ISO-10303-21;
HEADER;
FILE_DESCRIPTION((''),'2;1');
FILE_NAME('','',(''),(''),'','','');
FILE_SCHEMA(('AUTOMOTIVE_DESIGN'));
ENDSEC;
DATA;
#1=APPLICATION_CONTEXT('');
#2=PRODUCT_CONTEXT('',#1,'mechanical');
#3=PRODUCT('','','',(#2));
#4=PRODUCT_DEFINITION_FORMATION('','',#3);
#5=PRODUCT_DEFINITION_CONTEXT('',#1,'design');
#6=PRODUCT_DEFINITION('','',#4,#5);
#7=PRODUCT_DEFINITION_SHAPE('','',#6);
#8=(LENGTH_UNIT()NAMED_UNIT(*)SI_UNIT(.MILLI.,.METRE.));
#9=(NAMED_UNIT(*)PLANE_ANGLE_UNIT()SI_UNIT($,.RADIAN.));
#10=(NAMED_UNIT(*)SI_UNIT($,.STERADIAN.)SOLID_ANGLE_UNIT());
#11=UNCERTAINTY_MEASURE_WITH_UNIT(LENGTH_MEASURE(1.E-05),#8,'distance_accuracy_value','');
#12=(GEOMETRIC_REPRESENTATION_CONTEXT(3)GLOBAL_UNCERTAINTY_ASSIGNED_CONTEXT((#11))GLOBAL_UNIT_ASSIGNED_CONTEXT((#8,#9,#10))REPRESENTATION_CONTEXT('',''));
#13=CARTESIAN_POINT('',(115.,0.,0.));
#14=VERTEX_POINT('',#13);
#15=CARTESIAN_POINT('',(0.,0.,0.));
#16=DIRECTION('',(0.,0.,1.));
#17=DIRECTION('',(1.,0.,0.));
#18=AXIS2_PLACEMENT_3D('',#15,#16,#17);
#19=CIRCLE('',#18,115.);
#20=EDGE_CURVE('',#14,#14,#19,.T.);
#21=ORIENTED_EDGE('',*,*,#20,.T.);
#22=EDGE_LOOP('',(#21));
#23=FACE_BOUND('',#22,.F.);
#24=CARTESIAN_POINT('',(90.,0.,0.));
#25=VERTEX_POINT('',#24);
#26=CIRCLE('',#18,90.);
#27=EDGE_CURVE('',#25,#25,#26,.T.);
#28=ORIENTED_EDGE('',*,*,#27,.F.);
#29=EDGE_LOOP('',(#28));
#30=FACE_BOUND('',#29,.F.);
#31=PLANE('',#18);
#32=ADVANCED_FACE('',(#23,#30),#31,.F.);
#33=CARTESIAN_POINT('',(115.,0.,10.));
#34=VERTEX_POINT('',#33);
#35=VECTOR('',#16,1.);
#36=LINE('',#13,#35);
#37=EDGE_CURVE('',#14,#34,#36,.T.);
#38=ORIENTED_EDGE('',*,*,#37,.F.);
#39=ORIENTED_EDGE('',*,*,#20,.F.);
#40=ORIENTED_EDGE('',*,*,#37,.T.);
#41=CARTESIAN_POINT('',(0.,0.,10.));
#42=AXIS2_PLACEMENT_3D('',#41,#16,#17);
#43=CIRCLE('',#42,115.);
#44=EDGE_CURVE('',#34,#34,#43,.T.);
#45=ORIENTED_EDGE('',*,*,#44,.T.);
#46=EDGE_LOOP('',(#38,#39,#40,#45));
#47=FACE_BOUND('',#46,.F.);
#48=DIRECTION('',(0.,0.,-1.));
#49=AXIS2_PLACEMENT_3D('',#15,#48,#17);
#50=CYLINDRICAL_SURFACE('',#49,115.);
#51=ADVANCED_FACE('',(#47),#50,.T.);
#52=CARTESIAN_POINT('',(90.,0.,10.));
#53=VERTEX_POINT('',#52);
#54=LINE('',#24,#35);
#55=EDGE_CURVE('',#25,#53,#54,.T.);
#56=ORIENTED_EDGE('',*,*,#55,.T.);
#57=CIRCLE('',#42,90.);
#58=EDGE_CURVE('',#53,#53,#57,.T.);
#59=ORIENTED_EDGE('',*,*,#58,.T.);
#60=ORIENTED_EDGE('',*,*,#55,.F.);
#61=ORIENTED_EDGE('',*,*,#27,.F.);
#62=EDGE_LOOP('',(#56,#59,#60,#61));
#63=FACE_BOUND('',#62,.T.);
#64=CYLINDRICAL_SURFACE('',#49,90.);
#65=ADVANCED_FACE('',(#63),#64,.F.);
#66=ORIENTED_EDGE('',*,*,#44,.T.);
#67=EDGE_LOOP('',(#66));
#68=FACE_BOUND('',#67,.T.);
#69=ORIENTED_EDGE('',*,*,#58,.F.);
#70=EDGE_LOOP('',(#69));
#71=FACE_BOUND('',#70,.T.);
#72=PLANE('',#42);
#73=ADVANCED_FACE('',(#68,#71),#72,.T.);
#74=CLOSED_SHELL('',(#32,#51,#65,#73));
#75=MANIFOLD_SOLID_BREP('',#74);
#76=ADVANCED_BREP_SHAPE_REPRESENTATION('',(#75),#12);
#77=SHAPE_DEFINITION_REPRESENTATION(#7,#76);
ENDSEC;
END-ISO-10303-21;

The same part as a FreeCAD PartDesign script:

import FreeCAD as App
import Part
import Sketcher
Q = App.Units.Quantity

doc = App.newDocument("Part")
body = doc.addObject("PartDesign::Body", "Body")

sketch1 = body.newObject("Sketcher::SketchObject", "Sketch")
sketch1.AttachmentSupport = (doc.getObject("XY_Plane"), [""])
sketch1.MapMode = "FlatFace"
sketch1.addGeometry([
    Part.Circle(App.Vector(0, 0, 0), App.Vector(0, 0, 1), 115),
    Part.Circle(App.Vector(0, 0, 0), App.Vector(0, 0, 1), 90),
], False)
sketch1.addConstraint([
    Sketcher.Constraint("Coincident", 0, 3, -1, 1),
    Sketcher.Constraint("Coincident", 1, 3, -1, 1),
    Sketcher.Constraint("Diameter", 0, Q("230 mm")),
    Sketcher.Constraint("Diameter", 1, Q("180 mm")),
])
pad1 = body.newObject("PartDesign::Pad", "Pad")
pad1.Profile = sketch1
pad1.Length = 10

doc.recompute()
